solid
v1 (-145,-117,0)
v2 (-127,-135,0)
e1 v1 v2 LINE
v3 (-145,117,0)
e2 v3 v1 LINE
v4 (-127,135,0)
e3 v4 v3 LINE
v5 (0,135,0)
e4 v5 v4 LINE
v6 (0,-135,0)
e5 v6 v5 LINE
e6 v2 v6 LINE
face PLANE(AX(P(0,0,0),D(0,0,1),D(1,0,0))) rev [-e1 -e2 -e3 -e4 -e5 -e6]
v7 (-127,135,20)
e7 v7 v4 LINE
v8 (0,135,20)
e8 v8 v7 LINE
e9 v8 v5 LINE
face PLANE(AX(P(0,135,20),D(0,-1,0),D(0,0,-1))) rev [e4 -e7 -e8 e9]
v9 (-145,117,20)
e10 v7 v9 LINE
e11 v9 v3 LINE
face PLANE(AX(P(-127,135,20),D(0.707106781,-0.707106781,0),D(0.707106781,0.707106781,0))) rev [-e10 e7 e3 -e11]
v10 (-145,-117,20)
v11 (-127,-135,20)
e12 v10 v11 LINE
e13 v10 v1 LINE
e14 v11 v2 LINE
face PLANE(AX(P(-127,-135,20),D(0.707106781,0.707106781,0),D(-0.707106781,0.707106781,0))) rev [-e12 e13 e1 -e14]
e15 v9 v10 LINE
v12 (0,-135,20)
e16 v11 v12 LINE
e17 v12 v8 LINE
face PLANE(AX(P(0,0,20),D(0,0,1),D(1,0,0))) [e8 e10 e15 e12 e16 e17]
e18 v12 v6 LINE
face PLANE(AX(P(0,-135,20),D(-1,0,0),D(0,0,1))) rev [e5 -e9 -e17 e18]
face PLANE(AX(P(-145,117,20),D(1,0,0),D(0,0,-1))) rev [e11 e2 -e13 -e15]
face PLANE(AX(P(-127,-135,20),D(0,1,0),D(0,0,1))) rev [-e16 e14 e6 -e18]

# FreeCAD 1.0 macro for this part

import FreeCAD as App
import Part
import Sketcher
Q = App.Units.Quantity


def add_polygon(sketch, points):
    """Adds a closed chain of lines whose ends are joined by coincident constraints."""
    first, n = sketch.GeometryCount, len(points)
    for a, b in zip(points, points[1:] + points[:1]):
        sketch.addGeometry(Part.LineSegment(App.Vector(*a, 0), App.Vector(*b, 0)), False)
    for i in range(n):
        sketch.addConstraint(Sketcher.Constraint("Coincident", first + i, 2, first + (i + 1) % n, 1))

doc = App.newDocument("Part")
params = doc.addObject("Spreadsheet::Sheet", "Params")
for row, (alias, value) in enumerate([
    ("sketch1_width", "127 mm"),
    ("sketch1_height", "234 mm"),
    ("sketch1_height2", "270 mm"),
    ("pad1_length", "20 mm"),
], start=1):
    params.set(f"A{row}", alias)
    params.set(f"B{row}", "=" + value)
    params.setAlias(f"B{row}", alias)

body = doc.addObject("PartDesign::Body", "Body")

# Sketch on XY plane
sketch1 = body.newObject("Sketcher::SketchObject", "Sketch")
sketch1.AttachmentSupport = (doc.getObject("XY_Plane"), [""])
sketch1.MapMode = "FlatFace"
add_polygon(sketch1, [(0, 135), (-127, 135), (-145, 117), (-145, -117), (-127, -135), (0, -135)])  # lines 0-5
sketch1.addConstraint([
    Sketcher.Constraint("Horizontal", 0),
    Sketcher.Constraint("Vertical", 2),
    Sketcher.Constraint("Horizontal", 4),
    Sketcher.Constraint("Vertical", 5),
    Sketcher.Constraint("Symmetric", 4, 2, 5, 2, -1, 1),
    Sketcher.Constraint("Perpendicular", 1, 3),
    Sketcher.Constraint("Vertical", 0, 2, 3, 2),
    Sketcher.Constraint("Equal", 1, 3),
    Sketcher.Constraint("DistanceX", 0, 2, 0, 1, Q("127 mm")),
    Sketcher.Constraint("DistanceY", 2, 2, 2, 1, Q("234 mm")),
    Sketcher.Constraint("DistanceY", 5, 1, 5, 2, Q("270 mm")),
])
sketch1.setExpression("Constraints[14]", "Params.sketch1_width")
sketch1.setExpression("Constraints[15]", "Params.sketch1_height")
sketch1.setExpression("Constraints[16]", "Params.sketch1_height2")
pad1 = body.newObject("PartDesign::Pad", "Pad")
pad1.Profile = sketch1
pad1.setExpression("Length", "Params.pad1_length")

doc.recompute()
